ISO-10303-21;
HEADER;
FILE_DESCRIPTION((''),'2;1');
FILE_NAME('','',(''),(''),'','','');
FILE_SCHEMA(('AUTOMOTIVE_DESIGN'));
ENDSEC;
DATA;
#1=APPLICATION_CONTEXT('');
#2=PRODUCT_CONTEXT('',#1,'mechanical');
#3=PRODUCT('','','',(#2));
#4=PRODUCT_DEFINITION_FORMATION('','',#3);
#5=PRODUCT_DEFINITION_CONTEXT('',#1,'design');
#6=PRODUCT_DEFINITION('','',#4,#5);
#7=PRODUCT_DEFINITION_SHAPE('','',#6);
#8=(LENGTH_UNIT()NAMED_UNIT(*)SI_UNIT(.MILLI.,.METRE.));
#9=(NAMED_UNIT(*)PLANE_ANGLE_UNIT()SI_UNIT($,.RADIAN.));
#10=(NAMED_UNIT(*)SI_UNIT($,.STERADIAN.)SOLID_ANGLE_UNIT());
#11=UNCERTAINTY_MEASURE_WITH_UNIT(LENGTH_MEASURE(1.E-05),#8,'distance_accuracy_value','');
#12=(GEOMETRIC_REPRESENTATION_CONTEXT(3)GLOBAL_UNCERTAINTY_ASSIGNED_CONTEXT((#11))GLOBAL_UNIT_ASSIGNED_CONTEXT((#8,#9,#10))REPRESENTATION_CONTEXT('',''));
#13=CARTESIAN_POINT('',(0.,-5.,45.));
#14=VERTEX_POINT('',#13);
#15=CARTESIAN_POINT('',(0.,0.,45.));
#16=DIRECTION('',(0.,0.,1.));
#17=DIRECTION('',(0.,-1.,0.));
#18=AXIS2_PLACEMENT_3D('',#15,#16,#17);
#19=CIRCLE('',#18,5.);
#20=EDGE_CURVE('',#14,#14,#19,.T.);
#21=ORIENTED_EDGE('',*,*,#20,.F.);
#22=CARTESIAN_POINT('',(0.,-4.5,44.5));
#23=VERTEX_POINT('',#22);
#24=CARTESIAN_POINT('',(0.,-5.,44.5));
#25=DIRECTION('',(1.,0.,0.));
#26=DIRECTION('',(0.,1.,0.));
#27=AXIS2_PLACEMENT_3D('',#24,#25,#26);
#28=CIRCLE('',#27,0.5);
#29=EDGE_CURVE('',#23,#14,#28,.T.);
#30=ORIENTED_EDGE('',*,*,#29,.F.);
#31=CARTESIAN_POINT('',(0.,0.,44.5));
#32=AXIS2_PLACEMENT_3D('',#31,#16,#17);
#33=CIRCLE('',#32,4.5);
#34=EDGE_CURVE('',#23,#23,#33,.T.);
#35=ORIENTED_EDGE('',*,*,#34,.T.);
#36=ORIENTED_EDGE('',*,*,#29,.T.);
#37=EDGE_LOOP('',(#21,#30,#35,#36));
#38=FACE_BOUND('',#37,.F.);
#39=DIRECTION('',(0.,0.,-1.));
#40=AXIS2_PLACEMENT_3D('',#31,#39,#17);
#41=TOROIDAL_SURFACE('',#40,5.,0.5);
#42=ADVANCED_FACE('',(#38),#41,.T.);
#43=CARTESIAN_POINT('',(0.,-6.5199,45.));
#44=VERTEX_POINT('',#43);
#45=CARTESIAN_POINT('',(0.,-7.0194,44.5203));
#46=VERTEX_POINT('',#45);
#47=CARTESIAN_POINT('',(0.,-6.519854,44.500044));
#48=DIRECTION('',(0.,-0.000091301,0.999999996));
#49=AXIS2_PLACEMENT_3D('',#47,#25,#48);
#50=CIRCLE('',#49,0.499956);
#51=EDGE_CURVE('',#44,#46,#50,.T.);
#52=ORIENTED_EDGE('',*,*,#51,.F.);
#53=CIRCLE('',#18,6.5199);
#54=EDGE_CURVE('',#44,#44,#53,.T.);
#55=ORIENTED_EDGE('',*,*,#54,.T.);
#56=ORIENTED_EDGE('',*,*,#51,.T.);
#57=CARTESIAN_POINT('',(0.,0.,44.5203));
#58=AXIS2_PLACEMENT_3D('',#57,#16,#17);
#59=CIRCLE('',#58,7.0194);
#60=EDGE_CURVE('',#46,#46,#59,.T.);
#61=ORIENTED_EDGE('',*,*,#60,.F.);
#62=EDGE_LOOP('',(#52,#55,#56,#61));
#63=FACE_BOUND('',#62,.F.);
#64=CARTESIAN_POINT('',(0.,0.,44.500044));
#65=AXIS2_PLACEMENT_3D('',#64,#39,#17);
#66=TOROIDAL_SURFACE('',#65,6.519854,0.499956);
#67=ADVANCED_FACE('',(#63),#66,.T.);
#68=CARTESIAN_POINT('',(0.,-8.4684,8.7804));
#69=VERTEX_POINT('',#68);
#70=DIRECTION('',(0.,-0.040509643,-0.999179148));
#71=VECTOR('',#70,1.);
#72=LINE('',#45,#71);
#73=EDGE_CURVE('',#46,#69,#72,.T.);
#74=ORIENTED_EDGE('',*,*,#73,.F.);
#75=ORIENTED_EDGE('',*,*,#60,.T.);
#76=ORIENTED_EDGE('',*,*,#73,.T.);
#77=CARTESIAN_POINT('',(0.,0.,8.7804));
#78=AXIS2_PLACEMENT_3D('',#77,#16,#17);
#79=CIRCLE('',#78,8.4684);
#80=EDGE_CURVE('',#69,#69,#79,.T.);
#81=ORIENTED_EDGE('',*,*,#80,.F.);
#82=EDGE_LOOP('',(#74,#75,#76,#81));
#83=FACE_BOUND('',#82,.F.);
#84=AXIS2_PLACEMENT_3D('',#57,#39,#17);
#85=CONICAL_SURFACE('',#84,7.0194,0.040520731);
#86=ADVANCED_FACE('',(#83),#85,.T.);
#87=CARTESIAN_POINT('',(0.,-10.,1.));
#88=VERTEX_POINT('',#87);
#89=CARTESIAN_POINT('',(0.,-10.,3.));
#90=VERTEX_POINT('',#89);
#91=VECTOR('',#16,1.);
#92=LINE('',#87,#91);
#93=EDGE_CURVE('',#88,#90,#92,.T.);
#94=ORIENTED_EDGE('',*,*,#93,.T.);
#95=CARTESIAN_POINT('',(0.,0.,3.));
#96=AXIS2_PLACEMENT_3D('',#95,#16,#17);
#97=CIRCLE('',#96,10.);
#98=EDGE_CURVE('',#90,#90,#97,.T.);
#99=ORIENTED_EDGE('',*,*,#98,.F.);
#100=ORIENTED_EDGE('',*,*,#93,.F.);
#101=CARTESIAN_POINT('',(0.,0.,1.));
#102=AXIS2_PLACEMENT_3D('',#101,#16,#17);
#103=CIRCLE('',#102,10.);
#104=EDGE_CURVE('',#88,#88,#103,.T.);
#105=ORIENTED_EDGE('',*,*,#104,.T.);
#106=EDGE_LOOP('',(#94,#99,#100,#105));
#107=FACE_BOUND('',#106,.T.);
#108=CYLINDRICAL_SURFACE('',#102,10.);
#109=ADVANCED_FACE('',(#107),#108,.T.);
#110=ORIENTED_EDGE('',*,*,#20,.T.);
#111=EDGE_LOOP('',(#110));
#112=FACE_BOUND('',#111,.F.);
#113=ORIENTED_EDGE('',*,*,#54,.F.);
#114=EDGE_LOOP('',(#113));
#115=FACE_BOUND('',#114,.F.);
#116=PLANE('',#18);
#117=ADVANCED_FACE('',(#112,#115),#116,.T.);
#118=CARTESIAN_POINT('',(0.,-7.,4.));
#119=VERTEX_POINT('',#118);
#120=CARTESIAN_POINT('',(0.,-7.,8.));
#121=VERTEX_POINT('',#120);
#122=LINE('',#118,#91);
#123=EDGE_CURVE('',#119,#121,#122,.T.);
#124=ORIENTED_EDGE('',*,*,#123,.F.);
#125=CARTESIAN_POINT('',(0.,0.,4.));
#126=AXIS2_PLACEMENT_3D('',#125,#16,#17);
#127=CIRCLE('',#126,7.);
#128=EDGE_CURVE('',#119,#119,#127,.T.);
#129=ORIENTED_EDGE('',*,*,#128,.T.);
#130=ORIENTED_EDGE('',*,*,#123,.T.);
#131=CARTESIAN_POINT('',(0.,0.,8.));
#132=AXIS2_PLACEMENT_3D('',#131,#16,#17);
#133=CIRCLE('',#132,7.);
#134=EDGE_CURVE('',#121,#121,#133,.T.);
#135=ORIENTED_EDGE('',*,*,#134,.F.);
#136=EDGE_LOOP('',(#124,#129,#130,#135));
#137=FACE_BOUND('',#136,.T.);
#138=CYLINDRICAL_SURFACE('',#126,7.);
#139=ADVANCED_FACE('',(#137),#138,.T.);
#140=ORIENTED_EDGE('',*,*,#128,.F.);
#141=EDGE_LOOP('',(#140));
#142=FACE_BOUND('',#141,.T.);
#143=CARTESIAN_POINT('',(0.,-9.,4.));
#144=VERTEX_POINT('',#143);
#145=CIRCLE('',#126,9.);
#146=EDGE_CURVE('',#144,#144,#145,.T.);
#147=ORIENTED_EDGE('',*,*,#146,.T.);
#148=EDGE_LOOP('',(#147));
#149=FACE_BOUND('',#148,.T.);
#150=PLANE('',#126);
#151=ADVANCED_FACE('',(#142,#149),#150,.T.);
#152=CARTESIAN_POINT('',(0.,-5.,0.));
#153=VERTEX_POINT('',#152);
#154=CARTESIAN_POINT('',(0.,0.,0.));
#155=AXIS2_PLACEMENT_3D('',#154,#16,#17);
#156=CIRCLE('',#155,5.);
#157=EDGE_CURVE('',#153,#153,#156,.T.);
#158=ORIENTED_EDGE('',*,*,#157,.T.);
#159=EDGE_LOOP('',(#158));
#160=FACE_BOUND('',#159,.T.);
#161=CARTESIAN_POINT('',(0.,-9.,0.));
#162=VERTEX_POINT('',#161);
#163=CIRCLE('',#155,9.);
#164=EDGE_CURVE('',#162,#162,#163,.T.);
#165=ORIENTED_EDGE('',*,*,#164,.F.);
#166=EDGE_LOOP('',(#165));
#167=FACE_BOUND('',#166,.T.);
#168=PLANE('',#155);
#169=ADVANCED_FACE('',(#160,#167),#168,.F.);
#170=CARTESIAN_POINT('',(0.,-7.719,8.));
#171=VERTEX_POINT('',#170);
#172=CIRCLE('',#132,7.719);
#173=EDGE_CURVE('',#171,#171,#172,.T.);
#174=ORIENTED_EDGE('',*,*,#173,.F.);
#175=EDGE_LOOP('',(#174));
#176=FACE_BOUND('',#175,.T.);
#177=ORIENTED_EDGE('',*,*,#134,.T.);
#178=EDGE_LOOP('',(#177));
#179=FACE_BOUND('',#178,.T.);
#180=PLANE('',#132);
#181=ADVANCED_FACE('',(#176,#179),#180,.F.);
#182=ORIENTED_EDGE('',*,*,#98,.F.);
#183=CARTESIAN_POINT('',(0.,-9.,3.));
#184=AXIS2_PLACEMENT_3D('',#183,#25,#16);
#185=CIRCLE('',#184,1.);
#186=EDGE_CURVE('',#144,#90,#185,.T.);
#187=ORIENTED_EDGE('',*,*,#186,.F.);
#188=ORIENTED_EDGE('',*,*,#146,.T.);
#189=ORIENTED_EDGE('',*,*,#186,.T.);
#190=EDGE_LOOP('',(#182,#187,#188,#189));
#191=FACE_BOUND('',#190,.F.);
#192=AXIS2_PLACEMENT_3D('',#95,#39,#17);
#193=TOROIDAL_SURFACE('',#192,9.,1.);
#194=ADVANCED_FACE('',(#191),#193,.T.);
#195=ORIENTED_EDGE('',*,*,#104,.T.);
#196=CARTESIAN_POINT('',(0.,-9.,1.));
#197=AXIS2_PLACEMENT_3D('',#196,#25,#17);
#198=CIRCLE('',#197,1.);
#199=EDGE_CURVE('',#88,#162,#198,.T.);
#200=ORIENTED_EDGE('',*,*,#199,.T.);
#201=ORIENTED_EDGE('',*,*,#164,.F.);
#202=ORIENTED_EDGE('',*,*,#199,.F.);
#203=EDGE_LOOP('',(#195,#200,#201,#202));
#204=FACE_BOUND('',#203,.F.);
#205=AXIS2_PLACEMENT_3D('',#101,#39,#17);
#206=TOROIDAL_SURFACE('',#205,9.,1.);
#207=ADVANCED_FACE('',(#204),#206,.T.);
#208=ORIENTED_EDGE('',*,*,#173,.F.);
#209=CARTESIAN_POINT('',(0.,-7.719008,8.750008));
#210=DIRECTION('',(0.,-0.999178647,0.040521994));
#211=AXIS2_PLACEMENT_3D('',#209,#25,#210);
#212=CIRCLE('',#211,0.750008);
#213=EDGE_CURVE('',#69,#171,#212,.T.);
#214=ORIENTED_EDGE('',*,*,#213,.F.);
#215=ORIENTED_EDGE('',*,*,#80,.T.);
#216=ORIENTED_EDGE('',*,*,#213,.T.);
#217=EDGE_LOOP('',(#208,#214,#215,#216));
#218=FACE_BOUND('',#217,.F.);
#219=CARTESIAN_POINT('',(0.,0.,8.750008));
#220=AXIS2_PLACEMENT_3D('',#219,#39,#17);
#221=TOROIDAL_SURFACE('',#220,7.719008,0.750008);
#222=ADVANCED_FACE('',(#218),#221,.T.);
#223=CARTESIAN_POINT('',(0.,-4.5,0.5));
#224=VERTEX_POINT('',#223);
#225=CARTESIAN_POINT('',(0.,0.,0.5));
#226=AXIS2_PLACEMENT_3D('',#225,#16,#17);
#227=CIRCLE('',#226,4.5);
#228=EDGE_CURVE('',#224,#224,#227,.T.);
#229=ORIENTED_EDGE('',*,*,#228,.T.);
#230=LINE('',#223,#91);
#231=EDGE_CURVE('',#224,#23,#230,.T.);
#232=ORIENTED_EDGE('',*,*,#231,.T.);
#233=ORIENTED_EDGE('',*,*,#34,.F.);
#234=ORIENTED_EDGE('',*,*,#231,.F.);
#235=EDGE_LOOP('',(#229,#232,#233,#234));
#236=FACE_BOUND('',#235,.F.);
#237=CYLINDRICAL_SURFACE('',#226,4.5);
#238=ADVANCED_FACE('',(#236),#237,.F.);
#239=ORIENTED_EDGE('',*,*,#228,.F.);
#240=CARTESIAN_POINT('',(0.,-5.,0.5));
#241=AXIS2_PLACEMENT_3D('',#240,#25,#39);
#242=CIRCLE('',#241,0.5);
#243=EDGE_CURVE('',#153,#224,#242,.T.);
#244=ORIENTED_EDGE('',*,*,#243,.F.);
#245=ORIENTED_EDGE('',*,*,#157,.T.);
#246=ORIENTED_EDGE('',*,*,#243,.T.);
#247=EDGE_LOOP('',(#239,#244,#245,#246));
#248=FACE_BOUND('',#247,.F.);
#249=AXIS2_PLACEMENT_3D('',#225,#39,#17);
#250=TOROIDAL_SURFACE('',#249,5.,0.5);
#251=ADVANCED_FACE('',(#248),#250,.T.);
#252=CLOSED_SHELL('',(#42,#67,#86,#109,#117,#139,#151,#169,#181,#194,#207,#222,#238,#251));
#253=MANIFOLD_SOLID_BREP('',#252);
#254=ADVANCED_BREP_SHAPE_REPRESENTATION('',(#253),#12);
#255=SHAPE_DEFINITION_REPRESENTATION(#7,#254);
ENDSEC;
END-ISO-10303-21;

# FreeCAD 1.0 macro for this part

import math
import FreeCAD as App
import Part
import Sketcher

V = App.Vector

doc = App.newDocument("Part")
body = doc.addObject("PartDesign::Body", "Body")

sketch1 = body.newObject("Sketcher::SketchObject", "Sketch")
sketch1.AttachmentSupport = (doc.getObject("YZ_Plane"), [""])
sketch1.MapMode = "FlatFace"
sketch1.addGeometry(Part.LineSegment(V(-9, 0, 0), V(-5, 0, 0)), False)
sketch1.addGeometry(Part.ArcOfCircle(Part.Circle(V(-5, 0.5, 0), V(0, 0, 1), 0.5), math.radians(-90), math.radians(0)), False)
sketch1.addGeometry(Part.LineSegment(V(-4.5, 0.5, 0), V(-4.5, 44.5, 0)), False)
sketch1.addGeometry(Part.ArcOfCircle(Part.Circle(V(-5, 44.5, 0), V(0, 0, 1), 0.5), math.radians(0), math.radians(90)), False)
sketch1.addGeometry(Part.LineSegment(V(-5, 45, 0), V(-6.5199, 45, 0)), False)
sketch1.addGeometry(Part.ArcOfCircle(Part.Circle(V(-6.5199, 44.5, 0), V(0, 0, 1), 0.5), math.radians(90), math.radians(177.672744)), False)
sketch1.addGeometry(Part.LineSegment(V(-7.0194, 44.5203, 0), V(-8.4684, 8.7804, 0)), False)
sketch1.addGeometry(Part.ArcOfCircle(Part.Circle(V(-7.719, 8.75, 0), V(0, 0, 1), 0.750016), math.radians(177.677025), math.radians(270)), False)
sketch1.addGeometry(Part.LineSegment(V(-7.719, 8, 0), V(-7, 8, 0)), False)
sketch1.addGeometry(Part.LineSegment(V(-7, 8, 0), V(-7, 4, 0)), False)
sketch1.addGeometry(Part.LineSegment(V(-7, 4, 0), V(-9, 4, 0)), False)
sketch1.addGeometry(Part.ArcOfCircle(Part.Circle(V(-9, 3, 0), V(0, 0, 1), 1), math.radians(90), math.radians(180)), False)
sketch1.addGeometry(Part.LineSegment(V(-10, 3, 0), V(-10, 1, 0)), False)
sketch1.addGeometry(Part.ArcOfCircle(Part.Circle(V(-9, 1, 0), V(0, 0, 1), 1), math.radians(180), math.radians(270)), False)
sketch1.addConstraint(Sketcher.Constraint("Tangent", 0, 2, 1, 1))
sketch1.addConstraint(Sketcher.Constraint("Tangent", 1, 2, 2, 1))
sketch1.addConstraint(Sketcher.Constraint("Tangent", 2, 2, 3, 1))
sketch1.addConstraint(Sketcher.Constraint("Tangent", 3, 2, 4, 1))
sketch1.addConstraint(Sketcher.Constraint("Tangent", 4, 2, 5, 1))
sketch1.addConstraint(Sketcher.Constraint("Tangent", 5, 2, 6, 1))
sketch1.addConstraint(Sketcher.Constraint("Tangent", 6, 2, 7, 1))
sketch1.addConstraint(Sketcher.Constraint("Tangent", 7, 2, 8, 1))
sketch1.addConstraint(Sketcher.Constraint("Coincident", 8, 2, 9, 1))
sketch1.addConstraint(Sketcher.Constraint("Coincident", 9, 2, 10, 1))
sketch1.addConstraint(Sketcher.Constraint("Tangent", 10, 2, 11, 1))
sketch1.addConstraint(Sketcher.Constraint("Tangent", 11, 2, 12, 1))
sketch1.addConstraint(Sketcher.Constraint("Tangent", 12, 2, 13, 1))
sketch1.addConstraint(Sketcher.Constraint("Tangent", 13, 2, 0, 1))
sketch1.addConstraint(Sketcher.Constraint("Horizontal", 0))
sketch1.addConstraint(Sketcher.Constraint("Vertical", 2))
sketch1.addConstraint(Sketcher.Constraint("Horizontal", 4))
sketch1.addConstraint(Sketcher.Constraint("Horizontal", 8))
sketch1.addConstraint(Sketcher.Constraint("Vertical", 9))
sketch1.addConstraint(Sketcher.Constraint("Horizontal", 10))
sketch1.addConstraint(Sketcher.Constraint("Vertical", 12))
sketch1.addConstraint(Sketcher.Constraint("Equal", 1, 3))
sketch1.addConstraint(Sketcher.Constraint("Equal", 3, 5))
sketch1.addConstraint(Sketcher.Constraint("Equal", 11, 13))
sketch1.addConstraint(Sketcher.Constraint("PointOnObject", 0, 2, -1))
sketch1.addConstraint(Sketcher.Constraint("Equal", 0, 9))
sketch1.addConstraint(Sketcher.Constraint("Equal", 10, 12))
sketch1.addConstraint(Sketcher.Constraint("Radius", 11, 1.0))
sketch1.addConstraint(Sketcher.Constraint("Radius", 1, 0.5))
sketch1.addConstraint(Sketcher.Constraint("DistanceX", 0, 1, 0, 2, 4.0))
sketch1.addConstraint(Sketcher.Constraint("Radius", 7, 0.75))
sketch1.addConstraint(Sketcher.Constraint("DistanceY", -1, 1, 3, 2, 45.0))
sketch1.addConstraint(Sketcher.Constraint("DistanceY", -1, 1, 9, 2, 4.0))
sketch1.addConstraint(Sketcher.Constraint("DistanceX", 1, 2, -1, 1, 4.5))
sketch1.addConstraint(Sketcher.Constraint("DistanceX", 4, 2, 4, 1, 1.52))
sketch1.addConstraint(Sketcher.Constraint("DistanceX", 8, 1, 8, 2, 0.719))
revolution = body.newObject("PartDesign::Revolution", "Revolution")
revolution.Profile = sketch1
revolution.ReferenceAxis = (sketch1, ["V_Axis"])
revolution.Angle = 360

doc.recompute()
